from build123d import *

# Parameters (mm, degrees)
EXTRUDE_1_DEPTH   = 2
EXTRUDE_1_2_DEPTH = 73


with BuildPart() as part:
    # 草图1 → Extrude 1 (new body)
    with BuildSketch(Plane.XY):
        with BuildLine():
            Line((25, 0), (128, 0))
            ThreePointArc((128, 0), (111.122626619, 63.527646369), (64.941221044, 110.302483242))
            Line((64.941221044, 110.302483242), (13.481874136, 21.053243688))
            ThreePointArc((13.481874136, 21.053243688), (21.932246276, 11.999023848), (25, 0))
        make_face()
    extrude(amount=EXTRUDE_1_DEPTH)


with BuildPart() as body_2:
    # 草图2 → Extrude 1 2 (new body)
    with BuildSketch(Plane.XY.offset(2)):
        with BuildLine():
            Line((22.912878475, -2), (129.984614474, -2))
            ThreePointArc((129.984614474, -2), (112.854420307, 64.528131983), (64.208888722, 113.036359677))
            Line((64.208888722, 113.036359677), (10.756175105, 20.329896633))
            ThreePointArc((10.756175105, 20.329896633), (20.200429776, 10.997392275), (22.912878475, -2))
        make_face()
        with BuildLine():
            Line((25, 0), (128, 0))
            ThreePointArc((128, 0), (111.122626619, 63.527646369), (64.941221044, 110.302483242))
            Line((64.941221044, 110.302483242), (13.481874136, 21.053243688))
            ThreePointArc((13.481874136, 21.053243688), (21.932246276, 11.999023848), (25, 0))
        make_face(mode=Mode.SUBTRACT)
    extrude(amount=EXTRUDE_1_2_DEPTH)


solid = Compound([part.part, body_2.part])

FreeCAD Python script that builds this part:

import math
import FreeCAD as App
import Part
import Sketcher

V = App.Vector
Q = App.Units.Quantity

doc = App.newDocument("Part")
body = doc.addObject("PartDesign::Body", "Body")

sketch1 = body.newObject("Sketcher::SketchObject", "Sketch")
sketch1.AttachmentSupport = (doc.getObject("XY_Plane"), [""])
sketch1.MapMode = "FlatFace"
sketch1.addGeometry([
    Part.LineSegment(V(25, 0, 0), V(128, 0, 0)),
    Part.ArcOfCircle(Part.Circle(V(0, 0, 0), V(0, 0, 1), 128), math.radians(0), math.radians(59.512306)),
    Part.LineSegment(V(64.941221, 110.302483, 0), V(13.481874, 21.053244, 0)),
    Part.ArcOfCircle(Part.Circle(V(0, 0, 0), V(0, 0, 1), 25), math.radians(0), math.radians(57.365704)),
], False)
sketch1.addConstraint([
    Sketcher.Constraint("Coincident", 0, 2, 1, 1),
    Sketcher.Constraint("Coincident", 1, 2, 2, 1),
    Sketcher.Constraint("Coincident", 2, 2, 3, 2),
    Sketcher.Constraint("Coincident", 3, 1, 0, 1),
    Sketcher.Constraint("Horizontal", 0),
    Sketcher.Constraint("Coincident", 1, 3, -1, 1),
    Sketcher.Constraint("Coincident", 3, 3, -1, 1),
    Sketcher.Constraint("PointOnObject", 0, 2, -1),
    Sketcher.Constraint("Radius", 1, Q("128 mm")),
    Sketcher.Constraint("Radius", 3, Q("25 mm")),
    Sketcher.Constraint("Distance", 2, Q("103.021799 mm")),
    Sketcher.Constraint("DistanceX", -1, 1, 1, 2, Q("64.941221 mm")),
])
pad1 = body.newObject("PartDesign::Pad", "Pad")
pad1.Profile = sketch1
pad1.Length = 2
body2 = doc.addObject("PartDesign::Body", "Body001")

sketch2 = body2.newObject("Sketcher::SketchObject", "Sketch001")
sketch2.AttachmentSupport = (doc.getObject("XY_Plane001"), [""])
sketch2.MapMode = "FlatFace"
sketch2.AttachmentOffset = App.Placement(V(0, 0, 2), App.Rotation())
sketch2.addGeometry([
    Part.LineSegment(V(22.912878, -2, 0), V(129.984614, -2, 0)),
    Part.ArcOfCircle(Part.Circle(V(0, 0, 0), V(0, 0, 1), 130), math.radians(-0.881508), math.radians(60.401801)),
    Part.LineSegment(V(64.208889, 113.03636, 0), V(10.756175, 20.329897, 0)),
    Part.ArcOfCircle(Part.Circle(V(0, 0, 0), V(0, 0, 1), 23), math.radians(-4.988542), math.radians(62.117505)),
    Part.LineSegment(V(128, 0, 0), V(25, 0, 0)),
    Part.ArcOfCircle(Part.Circle(V(0, 0, 0), V(0, 0, 1), 25), math.radians(0), math.radians(57.365704)),
    Part.LineSegment(V(13.481874, 21.053244, 0), V(64.941221, 110.302483, 0)),
    Part.ArcOfCircle(Part.Circle(V(0, 0, 0), V(0, 0, 1), 128), math.radians(0), math.radians(59.512306)),
], False)
sketch2.addConstraint([
    Sketcher.Constraint("Coincident", 0, 2, 1, 1),
    Sketcher.Constraint("Coincident", 1, 2, 2, 1),
    Sketcher.Constraint("Coincident", 2, 2, 3, 2),
    Sketcher.Constraint("Coincident", 3, 1, 0, 1),
    Sketcher.Constraint("Coincident", 4, 2, 5, 1),
    Sketcher.Constraint("Coincident", 5, 2, 6, 1),
    Sketcher.Constraint("Coincident", 6, 2, 7, 2),
    Sketcher.Constraint("Coincident", 7, 1, 4, 1),
    Sketcher.Constraint("Horizontal", 0),
    Sketcher.Constraint("Horizontal", 4),
    Sketcher.Constraint("Coincident", 1, 3, -1, 1),
    Sketcher.Constraint("Coincident", 3, 3, -1, 1),
    Sketcher.Constraint("Coincident", 5, 3, -1, 1),
    Sketcher.Constraint("Coincident", 7, 3, -1, 1),
    Sketcher.Constraint("PointOnObject", 4, 2, -1),
    Sketcher.Constraint("Parallel", 2, 6),
    Sketcher.Constraint("Radius", 1, Q("130 mm")),
    Sketcher.Constraint("Radius", 3, Q("23 mm")),
    Sketcher.Constraint("Radius", 5, Q("25 mm")),
    Sketcher.Constraint("Radius", 7, Q("128 mm")),
    Sketcher.Constraint("DistanceY", 0, 2, -1, 1, Q("2 mm")),
    Sketcher.Constraint("Distance", 6, Q("103.021799 mm")),
    Sketcher.Constraint("DistanceX", 2, 2, 5, 2, Q("2.725699 mm")),
    Sketcher.Constraint("DistanceX", -1, 1, 1, 2, Q("64.208889 mm")),
])
pad2 = body2.newObject("PartDesign::Pad", "Pad001")
pad2.Profile = sketch2
pad2.Length = 73

doc.recompute()
